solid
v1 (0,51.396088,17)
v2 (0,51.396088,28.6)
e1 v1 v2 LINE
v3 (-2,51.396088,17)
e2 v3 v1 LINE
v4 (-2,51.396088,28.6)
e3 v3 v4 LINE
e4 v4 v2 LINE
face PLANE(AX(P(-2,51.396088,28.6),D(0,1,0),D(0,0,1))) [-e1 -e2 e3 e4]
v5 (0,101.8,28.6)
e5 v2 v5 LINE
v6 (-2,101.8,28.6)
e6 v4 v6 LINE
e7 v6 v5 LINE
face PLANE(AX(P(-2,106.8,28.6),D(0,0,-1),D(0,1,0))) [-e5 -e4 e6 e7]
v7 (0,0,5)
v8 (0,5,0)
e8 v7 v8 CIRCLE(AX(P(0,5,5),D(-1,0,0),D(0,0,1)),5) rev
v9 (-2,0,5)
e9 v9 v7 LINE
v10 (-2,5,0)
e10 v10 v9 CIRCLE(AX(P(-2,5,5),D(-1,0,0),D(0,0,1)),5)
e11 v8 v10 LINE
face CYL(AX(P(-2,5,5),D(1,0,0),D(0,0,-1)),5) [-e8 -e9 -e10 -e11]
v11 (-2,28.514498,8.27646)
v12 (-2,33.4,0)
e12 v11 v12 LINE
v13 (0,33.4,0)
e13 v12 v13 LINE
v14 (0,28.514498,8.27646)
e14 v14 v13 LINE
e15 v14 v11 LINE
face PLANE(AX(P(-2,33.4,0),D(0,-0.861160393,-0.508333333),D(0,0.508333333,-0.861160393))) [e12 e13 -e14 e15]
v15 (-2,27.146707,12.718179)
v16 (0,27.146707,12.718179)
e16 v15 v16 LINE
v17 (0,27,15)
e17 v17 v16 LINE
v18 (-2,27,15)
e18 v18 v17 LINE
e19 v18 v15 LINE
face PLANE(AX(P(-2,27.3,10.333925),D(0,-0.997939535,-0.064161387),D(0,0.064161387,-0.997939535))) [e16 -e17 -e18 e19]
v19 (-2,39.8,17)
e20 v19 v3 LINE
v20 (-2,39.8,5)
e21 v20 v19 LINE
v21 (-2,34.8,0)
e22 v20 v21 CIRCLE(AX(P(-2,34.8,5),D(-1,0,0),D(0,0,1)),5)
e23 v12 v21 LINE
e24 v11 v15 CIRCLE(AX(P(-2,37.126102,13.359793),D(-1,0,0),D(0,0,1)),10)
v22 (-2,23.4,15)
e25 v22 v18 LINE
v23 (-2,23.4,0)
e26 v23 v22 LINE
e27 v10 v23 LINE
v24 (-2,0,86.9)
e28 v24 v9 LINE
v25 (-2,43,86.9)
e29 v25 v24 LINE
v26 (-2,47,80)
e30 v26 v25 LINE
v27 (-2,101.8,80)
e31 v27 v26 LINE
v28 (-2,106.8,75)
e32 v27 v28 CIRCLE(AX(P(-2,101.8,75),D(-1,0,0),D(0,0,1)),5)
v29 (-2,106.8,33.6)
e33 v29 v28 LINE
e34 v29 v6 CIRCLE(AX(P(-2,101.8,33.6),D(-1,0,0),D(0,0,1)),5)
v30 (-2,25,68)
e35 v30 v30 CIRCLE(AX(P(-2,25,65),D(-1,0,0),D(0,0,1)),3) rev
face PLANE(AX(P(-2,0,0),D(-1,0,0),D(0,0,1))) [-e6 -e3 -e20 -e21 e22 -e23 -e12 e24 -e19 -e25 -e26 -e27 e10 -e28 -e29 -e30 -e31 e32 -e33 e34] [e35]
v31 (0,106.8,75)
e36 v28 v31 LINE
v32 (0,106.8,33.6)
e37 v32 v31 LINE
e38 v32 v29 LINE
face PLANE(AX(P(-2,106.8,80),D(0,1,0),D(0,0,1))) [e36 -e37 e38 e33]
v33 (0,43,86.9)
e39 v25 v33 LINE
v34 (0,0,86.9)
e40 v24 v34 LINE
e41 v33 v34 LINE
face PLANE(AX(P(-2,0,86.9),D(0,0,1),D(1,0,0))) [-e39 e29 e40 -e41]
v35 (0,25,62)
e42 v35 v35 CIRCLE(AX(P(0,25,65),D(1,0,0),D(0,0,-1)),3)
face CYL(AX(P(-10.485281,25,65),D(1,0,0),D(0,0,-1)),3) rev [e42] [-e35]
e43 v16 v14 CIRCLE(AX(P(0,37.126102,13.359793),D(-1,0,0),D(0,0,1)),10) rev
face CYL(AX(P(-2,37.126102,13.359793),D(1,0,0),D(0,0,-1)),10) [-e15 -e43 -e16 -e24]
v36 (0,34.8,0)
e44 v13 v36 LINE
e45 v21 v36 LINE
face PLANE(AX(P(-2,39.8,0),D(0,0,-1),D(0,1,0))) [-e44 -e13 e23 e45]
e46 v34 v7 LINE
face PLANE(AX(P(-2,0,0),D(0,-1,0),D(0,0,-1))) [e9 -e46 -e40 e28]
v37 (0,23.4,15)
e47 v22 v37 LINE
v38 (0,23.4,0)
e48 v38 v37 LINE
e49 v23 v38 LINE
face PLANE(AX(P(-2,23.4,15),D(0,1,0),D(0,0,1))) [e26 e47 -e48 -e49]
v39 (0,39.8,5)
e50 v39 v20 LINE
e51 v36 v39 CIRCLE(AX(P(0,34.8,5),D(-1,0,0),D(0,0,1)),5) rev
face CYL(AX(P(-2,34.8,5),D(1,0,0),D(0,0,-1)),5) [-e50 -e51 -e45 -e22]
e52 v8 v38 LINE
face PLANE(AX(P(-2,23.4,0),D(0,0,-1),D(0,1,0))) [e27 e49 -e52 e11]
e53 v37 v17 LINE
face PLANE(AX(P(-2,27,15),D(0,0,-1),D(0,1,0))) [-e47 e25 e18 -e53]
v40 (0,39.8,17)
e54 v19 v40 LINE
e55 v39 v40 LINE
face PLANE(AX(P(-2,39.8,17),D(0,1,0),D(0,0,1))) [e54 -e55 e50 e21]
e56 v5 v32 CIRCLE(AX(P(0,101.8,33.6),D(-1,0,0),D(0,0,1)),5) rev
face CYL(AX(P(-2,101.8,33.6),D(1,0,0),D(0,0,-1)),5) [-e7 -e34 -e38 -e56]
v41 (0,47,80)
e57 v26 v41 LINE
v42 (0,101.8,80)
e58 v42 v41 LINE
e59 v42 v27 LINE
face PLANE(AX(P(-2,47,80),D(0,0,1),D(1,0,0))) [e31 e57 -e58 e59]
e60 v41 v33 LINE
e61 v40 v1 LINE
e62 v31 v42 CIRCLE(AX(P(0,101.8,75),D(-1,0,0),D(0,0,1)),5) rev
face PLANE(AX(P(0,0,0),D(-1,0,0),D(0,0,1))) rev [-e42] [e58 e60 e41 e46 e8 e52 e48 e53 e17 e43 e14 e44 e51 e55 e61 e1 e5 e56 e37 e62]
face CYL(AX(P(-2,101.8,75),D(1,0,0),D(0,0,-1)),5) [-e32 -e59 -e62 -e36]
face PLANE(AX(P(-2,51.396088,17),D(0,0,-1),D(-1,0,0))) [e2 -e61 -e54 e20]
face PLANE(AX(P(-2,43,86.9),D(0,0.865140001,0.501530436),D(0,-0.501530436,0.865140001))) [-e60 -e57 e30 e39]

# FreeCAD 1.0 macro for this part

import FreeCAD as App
import Part
import Sketcher
from FreeCAD import Vector
Q = App.Units.Quantity


def edges_at(feature, points):
    """Names of the edges that pass closest to the given points."""
    edges = feature.Shape.Edges
    near = lambda p: min(range(len(edges)), key=lambda i: edges[i].distToShape(Part.Vertex(*p))[0])
    return sorted({f"Edge{near(p) + 1}" for p in points})

doc = App.newDocument("Part")
body = doc.addObject("PartDesign::Body", "Body")

# Sketch on YZ plane
sketch1 = doc.addObject("Sketcher::SketchObject", "Sketch")
body.addObject(sketch1)
sketch1.AttachmentSupport = (doc.YZ_Plane, [""])
sketch1.MapMode = "FlatFace"
sketch1.addGeometry(Part.LineSegment(Vector(0, 86.9, 0), Vector(0, 0, 0)), False)
sketch1.addGeometry(Part.LineSegment(Vector(0, 0, 0), Vector(23.4, 0, 0)), False)
sketch1.addGeometry(Part.LineSegment(Vector(23.4, 0, 0), Vector(23.4, 15, 0)), False)
sketch1.addGeometry(Part.LineSegment(Vector(23.4, 15, 0), Vector(27, 15, 0)), False)
sketch1.addGeometry(Part.LineSegment(Vector(27, 15, 0), Vector(27.3, 10.333925, 0)), False)
sketch1.addGeometry(Part.LineSegment(Vector(27.3, 10.333925, 0), Vector(33.4, 0, 0)), False)
sketch1.addGeometry(Part.LineSegment(Vector(33.4, 0, 0), Vector(39.8, 0, 0)), False)
sketch1.addGeometry(Part.LineSegment(Vector(39.8, 0, 0), Vector(39.8, 17, 0)), False)
sketch1.addGeometry(Part.LineSegment(Vector(39.8, 17, 0), Vector(51.396088, 17, 0)), False)
sketch1.addGeometry(Part.LineSegment(Vector(51.396088, 17, 0), Vector(51.396088, 28.6, 0)), False)
sketch1.addGeometry(Part.LineSegment(Vector(51.396088, 28.6, 0), Vector(106.8, 28.6, 0)), False)
sketch1.addGeometry(Part.LineSegment(Vector(106.8, 28.6, 0), Vector(106.8, 80, 0)), False)
sketch1.addGeometry(Part.LineSegment(Vector(106.8, 80, 0), Vector(47, 80, 0)), False)
sketch1.addGeometry(Part.LineSegment(Vector(47, 80, 0), Vector(43, 86.9, 0)), False)
sketch1.addGeometry(Part.LineSegment(Vector(43, 86.9, 0), Vector(0, 86.9, 0)), False)
sketch1.addConstraint(Sketcher.Constraint("Coincident", 0, 2, 1, 1))
sketch1.addConstraint(Sketcher.Constraint("Coincident", 1, 2, 2, 1))
sketch1.addConstraint(Sketcher.Constraint("Coincident", 2, 2, 3, 1))
sketch1.addConstraint(Sketcher.Constraint("Coincident", 3, 2, 4, 1))
sketch1.addConstraint(Sketcher.Constraint("Coincident", 4, 2, 5, 1))
sketch1.addConstraint(Sketcher.Constraint("Coincident", 5, 2, 6, 1))
sketch1.addConstraint(Sketcher.Constraint("Coincident", 6, 2, 7, 1))
sketch1.addConstraint(Sketcher.Constraint("Coincident", 7, 2, 8, 1))
sketch1.addConstraint(Sketcher.Constraint("Coincident", 8, 2, 9, 1))
sketch1.addConstraint(Sketcher.Constraint("Coincident", 9, 2, 10, 1))
sketch1.addConstraint(Sketcher.Constraint("Coincident", 10, 2, 11, 1))
sketch1.addConstraint(Sketcher.Constraint("Coincident", 11, 2, 12, 1))
sketch1.addConstraint(Sketcher.Constraint("Coincident", 12, 2, 13, 1))
sketch1.addConstraint(Sketcher.Constraint("Coincident", 13, 2, 14, 1))
sketch1.addConstraint(Sketcher.Constraint("Coincident", 14, 2, 0, 1))
sketch1.addConstraint(Sketcher.Constraint("Vertical", 0))
sketch1.addConstraint(Sketcher.Constraint("Horizontal", 1))
sketch1.addConstraint(Sketcher.Constraint("Vertical", 2))
sketch1.addConstraint(Sketcher.Constraint("Horizontal", 3))
sketch1.addConstraint(Sketcher.Constraint("Horizontal", 6))
sketch1.addConstraint(Sketcher.Constraint("Vertical", 7))
sketch1.addConstraint(Sketcher.Constraint("Horizontal", 8))
sketch1.addConstraint(Sketcher.Constraint("Vertical", 9))
sketch1.addConstraint(Sketcher.Constraint("Horizontal", 10))
sketch1.addConstraint(Sketcher.Constraint("Vertical", 11))
sketch1.addConstraint(Sketcher.Constraint("Horizontal", 12))
sketch1.addConstraint(Sketcher.Constraint("Horizontal", 14))
sketch1.addConstraint(Sketcher.Constraint("Coincident", 0, 2, -1, 1))
sketch1.addConstraint(Sketcher.Constraint("PointOnObject", 5, 2, -1))
sketch1.addConstraint(Sketcher.Constraint("DistanceX", 14, 2, 14, 1, Q("43 mm")))
sketch1.addConstraint(Sketcher.Constraint("DistanceY", 2, 1, 2, 2, Q("15 mm")))
sketch1.addConstraint(Sketcher.Constraint("DistanceY", 7, 1, 7, 2, Q("17 mm")))
sketch1.addConstraint(Sketcher.Constraint("Distance", 5, Q("12 mm")))
sketch1.addConstraint(Sketcher.Constraint("DistanceX", 1, 1, 1, 2, Q("23.4 mm")))
sketch1.addConstraint(Sketcher.Constraint("DistanceX", 3, 1, 3, 2, Q("3.6 mm")))
sketch1.addConstraint(Sketcher.Constraint("DistanceX", 6, 1, 6, 2, Q("6.4 mm")))
sketch1.addConstraint(Sketcher.Constraint("DistanceX", 12, 2, 12, 1, Q("59.8 mm")))
sketch1.addConstraint(Sketcher.Constraint("DistanceY", 0, 2, 0, 1, Q("86.9 mm")))
sketch1.addConstraint(Sketcher.Constraint("DistanceY", 9, 1, 9, 2, Q("11.6 mm")))
sketch1.addConstraint(Sketcher.Constraint("DistanceY", 11, 1, 11, 2, Q("51.4 mm")))
sketch1.addConstraint(Sketcher.Constraint("DistanceX", -1, 1, 12, 2, Q("47 mm")))
sketch1.addConstraint(Sketcher.Constraint("DistanceX", 1, 2, 5, 2, Q("10 mm")))
sketch1.addConstraint(Sketcher.Constraint("DistanceX", -1, 1, 4, 2, Q("27.3 mm")))
sketch1.addConstraint(Sketcher.Constraint("DistanceX", 8, 1, 8, 2, Q("11.596088 mm")))
pad1 = doc.addObject("PartDesign::Pad", "Pad")
body.addObject(pad1)
pad1.Profile = sketch1
pad1.Length = 2
pad1.Reversed = True
doc.recompute()

fillet = doc.addObject("PartDesign::Fillet", "Fillet")
body.addObject(fillet)
fillet.Base = (pad1, edges_at(pad1, [
    (-1, 0, 0),
    (-1, 106.8, 80),
    (-1, 106.8, 28.6),
    (-1, 39.8, 0),
]))
fillet.Radius = 5
doc.recompute()

fillet2 = doc.addObject("PartDesign::Fillet", "Fillet001")
body.addObject(fillet2)
fillet2.Base = (fillet, edges_at(fillet, [(-1, 27.3, 10.334)]))
fillet2.Radius = 10

# Sketch on YZ plane
sketch2 = doc.addObject("Sketcher::SketchObject", "Sketch001")
body.addObject(sketch2)
sketch2.AttachmentSupport = (doc.YZ_Plane, [""])
sketch2.MapMode = "FlatFace"
sketch2.addGeometry(Part.Circle(Vector(25, 65, 0), Vector(0, 0, 1), 3), False)
sketch2.addConstraint(Sketcher.Constraint("Diameter", 0, Q("6 mm")))
sketch2.addConstraint(Sketcher.Constraint("DistanceX", -1, 1, 0, 3, Q("25 mm")))
sketch2.addConstraint(Sketcher.Constraint("DistanceY", -1, 1, 0, 3, Q("65 mm")))
pocket1 = doc.addObject("PartDesign::Pocket", "Pocket")
body.addObject(pocket1)
pocket1.Profile = sketch2
pocket1.Length = 2

doc.recompute()
